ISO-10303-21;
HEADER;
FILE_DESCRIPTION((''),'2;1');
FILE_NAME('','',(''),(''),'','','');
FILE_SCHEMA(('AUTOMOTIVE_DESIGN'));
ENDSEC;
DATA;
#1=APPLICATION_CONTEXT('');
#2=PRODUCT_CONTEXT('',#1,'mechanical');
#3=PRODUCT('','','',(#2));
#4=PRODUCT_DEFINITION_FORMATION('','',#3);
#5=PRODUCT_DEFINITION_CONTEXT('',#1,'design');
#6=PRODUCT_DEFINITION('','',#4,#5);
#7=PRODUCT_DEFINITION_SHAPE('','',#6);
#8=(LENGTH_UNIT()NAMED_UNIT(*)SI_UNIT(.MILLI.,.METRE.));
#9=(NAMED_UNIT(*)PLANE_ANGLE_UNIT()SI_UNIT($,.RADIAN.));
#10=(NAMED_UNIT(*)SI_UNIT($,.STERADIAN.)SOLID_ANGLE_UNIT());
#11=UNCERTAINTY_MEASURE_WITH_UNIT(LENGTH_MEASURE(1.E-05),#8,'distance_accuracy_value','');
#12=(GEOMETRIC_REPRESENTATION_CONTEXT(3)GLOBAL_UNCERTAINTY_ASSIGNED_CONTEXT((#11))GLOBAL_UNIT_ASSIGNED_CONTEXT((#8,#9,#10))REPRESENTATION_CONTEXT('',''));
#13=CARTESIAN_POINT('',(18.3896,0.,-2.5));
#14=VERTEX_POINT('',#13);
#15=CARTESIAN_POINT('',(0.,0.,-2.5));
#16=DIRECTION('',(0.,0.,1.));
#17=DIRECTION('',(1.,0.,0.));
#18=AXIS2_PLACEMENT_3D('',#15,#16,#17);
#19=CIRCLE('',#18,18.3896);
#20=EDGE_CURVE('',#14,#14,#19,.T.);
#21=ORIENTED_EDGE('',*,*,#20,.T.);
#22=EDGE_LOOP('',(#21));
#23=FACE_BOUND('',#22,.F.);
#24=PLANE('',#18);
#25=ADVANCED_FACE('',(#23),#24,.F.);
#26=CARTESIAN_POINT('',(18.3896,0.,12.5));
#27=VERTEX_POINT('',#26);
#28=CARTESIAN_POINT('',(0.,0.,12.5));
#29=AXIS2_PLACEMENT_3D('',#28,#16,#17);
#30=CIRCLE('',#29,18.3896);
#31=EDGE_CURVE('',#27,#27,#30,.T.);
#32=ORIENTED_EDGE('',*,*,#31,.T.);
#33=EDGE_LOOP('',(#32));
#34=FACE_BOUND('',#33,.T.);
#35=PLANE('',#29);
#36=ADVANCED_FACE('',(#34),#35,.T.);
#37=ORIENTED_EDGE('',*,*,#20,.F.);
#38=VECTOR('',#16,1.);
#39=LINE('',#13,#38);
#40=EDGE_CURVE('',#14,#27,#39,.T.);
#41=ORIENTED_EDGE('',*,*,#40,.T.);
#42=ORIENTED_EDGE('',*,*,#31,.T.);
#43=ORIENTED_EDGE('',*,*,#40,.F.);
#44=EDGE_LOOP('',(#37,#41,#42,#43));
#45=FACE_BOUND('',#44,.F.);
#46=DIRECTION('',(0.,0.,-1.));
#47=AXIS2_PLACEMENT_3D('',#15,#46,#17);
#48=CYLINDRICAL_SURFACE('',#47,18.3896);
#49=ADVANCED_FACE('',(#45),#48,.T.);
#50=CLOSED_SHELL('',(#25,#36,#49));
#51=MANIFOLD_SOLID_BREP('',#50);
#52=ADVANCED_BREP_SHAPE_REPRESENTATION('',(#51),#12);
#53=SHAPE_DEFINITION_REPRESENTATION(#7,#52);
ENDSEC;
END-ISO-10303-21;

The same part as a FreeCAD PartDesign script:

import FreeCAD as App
import Part
import Sketcher
from FreeCAD import Vector

doc = App.newDocument("Part")
body = doc.addObject("PartDesign::Body", "Body")

# Sketch on XY plane
sketch1 = body.newObject("Sketcher::SketchObject", "Sketch")
sketch1.AttachmentSupport = (doc.getObject("XY_Plane"), [""])
sketch1.MapMode = "FlatFace"
sketch1.AttachmentOffset = App.Placement(Vector(0, 0, -2.5), App.Rotation())
sketch1.addGeometry(Part.Circle(Vector(0, 0, 0), Vector(0, 0, 1), 18), False)
sketch1.addConstraint([
    Sketcher.Constraint("Coincident", 0, 3, -1, 1),
    Sketcher.Constraint("Diameter", 0, 36.7792),
])
pad1 = body.newObject("PartDesign::Pad", "Pad")
pad1.Profile = sketch1
pad1.Length = 15

doc.recompute()
